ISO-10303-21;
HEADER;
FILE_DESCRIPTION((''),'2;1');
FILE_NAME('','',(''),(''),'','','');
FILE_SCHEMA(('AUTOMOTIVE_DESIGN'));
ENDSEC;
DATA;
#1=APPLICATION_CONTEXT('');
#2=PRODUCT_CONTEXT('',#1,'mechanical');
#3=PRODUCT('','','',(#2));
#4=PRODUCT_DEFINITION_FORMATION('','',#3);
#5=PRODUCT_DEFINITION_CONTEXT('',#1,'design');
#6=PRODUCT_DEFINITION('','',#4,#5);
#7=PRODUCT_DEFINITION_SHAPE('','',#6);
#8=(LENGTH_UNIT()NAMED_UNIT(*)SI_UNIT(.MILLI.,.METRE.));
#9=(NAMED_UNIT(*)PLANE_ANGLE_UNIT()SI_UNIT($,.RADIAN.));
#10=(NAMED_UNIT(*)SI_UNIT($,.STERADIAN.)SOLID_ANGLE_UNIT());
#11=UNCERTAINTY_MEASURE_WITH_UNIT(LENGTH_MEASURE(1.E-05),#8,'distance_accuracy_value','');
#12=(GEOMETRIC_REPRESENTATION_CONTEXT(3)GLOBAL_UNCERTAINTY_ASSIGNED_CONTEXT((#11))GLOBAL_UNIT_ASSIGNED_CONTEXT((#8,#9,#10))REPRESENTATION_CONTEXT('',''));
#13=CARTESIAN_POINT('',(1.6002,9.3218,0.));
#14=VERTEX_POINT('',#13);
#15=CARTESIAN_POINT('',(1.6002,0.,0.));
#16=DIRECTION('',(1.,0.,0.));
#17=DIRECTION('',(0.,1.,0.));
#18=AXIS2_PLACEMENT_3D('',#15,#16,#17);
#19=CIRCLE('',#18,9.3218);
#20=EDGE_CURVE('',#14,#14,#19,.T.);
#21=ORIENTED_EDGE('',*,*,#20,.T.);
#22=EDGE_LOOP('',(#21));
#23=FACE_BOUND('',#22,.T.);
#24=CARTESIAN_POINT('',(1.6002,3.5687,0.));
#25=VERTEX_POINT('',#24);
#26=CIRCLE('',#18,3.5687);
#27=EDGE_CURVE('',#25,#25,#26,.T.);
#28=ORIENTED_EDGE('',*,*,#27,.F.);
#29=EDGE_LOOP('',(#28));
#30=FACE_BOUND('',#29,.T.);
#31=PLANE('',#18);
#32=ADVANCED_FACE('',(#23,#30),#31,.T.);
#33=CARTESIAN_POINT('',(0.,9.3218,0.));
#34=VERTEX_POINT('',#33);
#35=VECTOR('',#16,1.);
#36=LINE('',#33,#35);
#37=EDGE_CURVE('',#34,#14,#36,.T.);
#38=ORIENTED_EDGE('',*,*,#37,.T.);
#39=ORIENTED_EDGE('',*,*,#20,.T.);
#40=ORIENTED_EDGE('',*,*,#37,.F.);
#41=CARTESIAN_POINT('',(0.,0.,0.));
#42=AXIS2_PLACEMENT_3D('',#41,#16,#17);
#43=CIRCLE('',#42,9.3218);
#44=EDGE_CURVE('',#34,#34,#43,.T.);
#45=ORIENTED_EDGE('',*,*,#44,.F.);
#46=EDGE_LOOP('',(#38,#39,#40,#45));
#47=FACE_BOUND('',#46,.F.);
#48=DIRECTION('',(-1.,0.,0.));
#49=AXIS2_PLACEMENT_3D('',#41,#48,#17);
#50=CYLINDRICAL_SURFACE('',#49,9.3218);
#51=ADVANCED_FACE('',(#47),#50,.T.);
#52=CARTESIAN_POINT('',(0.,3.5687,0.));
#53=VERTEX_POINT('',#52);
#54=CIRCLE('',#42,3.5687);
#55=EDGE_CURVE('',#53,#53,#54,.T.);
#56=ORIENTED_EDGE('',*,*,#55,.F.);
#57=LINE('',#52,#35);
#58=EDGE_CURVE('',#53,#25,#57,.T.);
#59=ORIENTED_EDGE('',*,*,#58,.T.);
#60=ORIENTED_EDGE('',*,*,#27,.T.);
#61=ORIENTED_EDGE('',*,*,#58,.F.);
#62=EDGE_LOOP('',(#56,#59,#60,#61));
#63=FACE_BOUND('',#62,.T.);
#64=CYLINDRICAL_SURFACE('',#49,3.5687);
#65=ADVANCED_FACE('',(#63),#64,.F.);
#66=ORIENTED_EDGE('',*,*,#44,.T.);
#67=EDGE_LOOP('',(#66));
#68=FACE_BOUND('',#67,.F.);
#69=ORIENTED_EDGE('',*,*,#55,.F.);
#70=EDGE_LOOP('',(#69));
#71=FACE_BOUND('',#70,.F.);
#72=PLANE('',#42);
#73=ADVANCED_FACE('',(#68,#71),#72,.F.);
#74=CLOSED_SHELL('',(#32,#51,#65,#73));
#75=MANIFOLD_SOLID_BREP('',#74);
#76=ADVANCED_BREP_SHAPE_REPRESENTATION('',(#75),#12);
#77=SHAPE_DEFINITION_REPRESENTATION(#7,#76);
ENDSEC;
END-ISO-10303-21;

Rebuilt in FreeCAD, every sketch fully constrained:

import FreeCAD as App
import Part
import Sketcher

V = App.Vector
Q = App.Units.Quantity

doc = App.newDocument("Part")
params = doc.addObject("Spreadsheet::Sheet", "Params")
for row, (alias, value) in enumerate([
    ("sketch1_diameter", "0.734 in"),
    ("sketch1_diameter2", "0.281 in"),
    ("pad1_length", "0.063 in"),
], start=1):
    params.set(f"A{row}", alias)
    params.set(f"B{row}", "=" + value)
    params.setAlias(f"B{row}", alias)

body = doc.addObject("PartDesign::Body", "Body")

sketch1 = body.newObject("Sketcher::SketchObject", "Sketch")
sketch1.AttachmentSupport = (doc.getObject("YZ_Plane"), [""])
sketch1.MapMode = "FlatFace"
sketch1.addGeometry(Part.Circle(V(0, 0, 0), V(0, 0, 1), 9.3), False)
sketch1.addGeometry(Part.Circle(V(0, 0, 0), V(0, 0, 1), 3.6), False)
sketch1.addConstraint(Sketcher.Constraint("Coincident", 0, 3, -1, 1))
sketch1.addConstraint(Sketcher.Constraint("Coincident", 1, 3, -1, 1))
sketch1.addConstraint(Sketcher.Constraint("Diameter", 0, Q("0.734 in")))
sketch1.addConstraint(Sketcher.Constraint("Diameter", 1, Q("0.281 in")))
sketch1.setExpression("Constraints[2]", "Params.sketch1_diameter")
sketch1.setExpression("Constraints[3]", "Params.sketch1_diameter2")
pad1 = body.newObject("PartDesign::Pad", "Pad")
pad1.Profile = sketch1
pad1.setExpression("Length", "Params.pad1_length")

doc.recompute()
